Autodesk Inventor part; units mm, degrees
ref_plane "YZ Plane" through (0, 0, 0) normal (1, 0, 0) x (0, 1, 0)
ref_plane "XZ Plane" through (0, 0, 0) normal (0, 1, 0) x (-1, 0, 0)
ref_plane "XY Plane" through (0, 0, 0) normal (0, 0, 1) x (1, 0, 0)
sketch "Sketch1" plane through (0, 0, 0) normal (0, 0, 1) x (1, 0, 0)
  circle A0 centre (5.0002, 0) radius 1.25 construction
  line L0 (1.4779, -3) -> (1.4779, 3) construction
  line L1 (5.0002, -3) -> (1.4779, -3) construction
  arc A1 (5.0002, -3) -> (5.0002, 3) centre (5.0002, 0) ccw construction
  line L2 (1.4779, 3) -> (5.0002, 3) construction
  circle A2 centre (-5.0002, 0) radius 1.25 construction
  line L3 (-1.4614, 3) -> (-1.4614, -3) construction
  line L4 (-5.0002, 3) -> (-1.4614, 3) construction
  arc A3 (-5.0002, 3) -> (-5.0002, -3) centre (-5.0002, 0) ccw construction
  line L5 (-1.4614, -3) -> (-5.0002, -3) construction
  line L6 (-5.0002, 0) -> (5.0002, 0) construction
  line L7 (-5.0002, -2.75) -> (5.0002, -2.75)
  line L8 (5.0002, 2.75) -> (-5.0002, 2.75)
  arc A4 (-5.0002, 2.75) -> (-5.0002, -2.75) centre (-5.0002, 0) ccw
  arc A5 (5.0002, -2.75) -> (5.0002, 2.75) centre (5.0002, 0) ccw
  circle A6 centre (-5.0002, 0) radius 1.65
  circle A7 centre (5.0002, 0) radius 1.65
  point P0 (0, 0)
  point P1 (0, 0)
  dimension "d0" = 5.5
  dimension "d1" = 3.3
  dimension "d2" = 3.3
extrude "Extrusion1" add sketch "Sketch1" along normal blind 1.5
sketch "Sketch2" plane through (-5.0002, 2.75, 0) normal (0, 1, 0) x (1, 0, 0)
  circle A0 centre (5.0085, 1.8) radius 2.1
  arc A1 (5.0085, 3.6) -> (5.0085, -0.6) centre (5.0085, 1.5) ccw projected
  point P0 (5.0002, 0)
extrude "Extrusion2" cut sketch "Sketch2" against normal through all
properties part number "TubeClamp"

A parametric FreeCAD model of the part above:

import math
import FreeCAD as App
import Part
import Sketcher
from FreeCAD import Vector
Q = App.Units.Quantity

doc = App.newDocument("Part")
body = doc.addObject("PartDesign::Body", "Body")

sketch1 = body.newObject("Sketcher::SketchObject", "Sketch")
sketch1.AttachmentSupport = (doc.getObject("XY_Plane"), [""])
sketch1.MapMode = "FlatFace"
sketch1.addGeometry([
    Part.ArcOfCircle(Part.Circle(Vector(-5.0002, 0, 0), Vector(0, 0, 1), 2.75), math.radians(90), math.radians(270)),
    Part.LineSegment(Vector(-5.0002, -2.75, 0), Vector(5.0002, -2.75, 0)),
    Part.ArcOfCircle(Part.Circle(Vector(5.0002, 0, 0), Vector(0, 0, 1), 2.75), math.radians(-90), math.radians(90)),
    Part.LineSegment(Vector(5.0002, 2.75, 0), Vector(-5.0002, 2.75, 0)),
    Part.Circle(Vector(-5.0002, 0, 0), Vector(0, 0, 1), 1.65),
    Part.Circle(Vector(5.0002, 0, 0), Vector(0, 0, 1), 1.65),
], False)
sketch1.addConstraint([
    Sketcher.Constraint("Tangent", 0, 2, 1, 1),
    Sketcher.Constraint("Tangent", 1, 2, 2, 1),
    Sketcher.Constraint("Tangent", 2, 2, 3, 1),
    Sketcher.Constraint("Tangent", 3, 2, 0, 1),
    Sketcher.Constraint("Horizontal", 1),
    Sketcher.Constraint("Horizontal", 3),
    Sketcher.Constraint("Coincident", 4, 3, 0, 3),
    Sketcher.Constraint("Coincident", 5, 3, 2, 3),
    Sketcher.Constraint("Equal", 4, 5),
    Sketcher.Constraint("Symmetric", 0, 3, 2, 3, -1, 1),
    Sketcher.Constraint("Diameter", 4, Q("3.3 mm")),
    Sketcher.Constraint("Radius", 0, Q("2.75 mm")),
    Sketcher.Constraint("DistanceX", 1, 1, 1, 2, Q("10.0004 mm")),
])
pad1 = body.newObject("PartDesign::Pad", "Pad")
pad1.Profile = sketch1
pad1.Length = 1.5

sketch2 = body.newObject("Sketcher::SketchObject", "Sketch001")
sketch2.AttachmentSupport = (doc.getObject("XZ_Plane"), [""])
sketch2.MapMode = "FlatFace"
sketch2.AttachmentOffset = App.Placement(Vector(0, 0, -2.75), App.Rotation())
sketch2.addGeometry(Part.Circle(Vector(0.0083, -1.8, 0), Vector(0, 0, 1), 2.1), False)
sketch2.addConstraint([
    Sketcher.Constraint("Diameter", 0, Q("4.2 mm")),
    Sketcher.Constraint("DistanceY", 0, 3, -1, 1, Q("1.8 mm")),
    Sketcher.Constraint("DistanceX", -1, 1, 0, 3, Q("0.0083 mm")),
])
pocket1 = body.newObject("PartDesign::Pocket", "Pocket")
pocket1.Profile = sketch2
pocket1.Type = "ThroughAll"
pocket1.Reversed = True

doc.recompute()
